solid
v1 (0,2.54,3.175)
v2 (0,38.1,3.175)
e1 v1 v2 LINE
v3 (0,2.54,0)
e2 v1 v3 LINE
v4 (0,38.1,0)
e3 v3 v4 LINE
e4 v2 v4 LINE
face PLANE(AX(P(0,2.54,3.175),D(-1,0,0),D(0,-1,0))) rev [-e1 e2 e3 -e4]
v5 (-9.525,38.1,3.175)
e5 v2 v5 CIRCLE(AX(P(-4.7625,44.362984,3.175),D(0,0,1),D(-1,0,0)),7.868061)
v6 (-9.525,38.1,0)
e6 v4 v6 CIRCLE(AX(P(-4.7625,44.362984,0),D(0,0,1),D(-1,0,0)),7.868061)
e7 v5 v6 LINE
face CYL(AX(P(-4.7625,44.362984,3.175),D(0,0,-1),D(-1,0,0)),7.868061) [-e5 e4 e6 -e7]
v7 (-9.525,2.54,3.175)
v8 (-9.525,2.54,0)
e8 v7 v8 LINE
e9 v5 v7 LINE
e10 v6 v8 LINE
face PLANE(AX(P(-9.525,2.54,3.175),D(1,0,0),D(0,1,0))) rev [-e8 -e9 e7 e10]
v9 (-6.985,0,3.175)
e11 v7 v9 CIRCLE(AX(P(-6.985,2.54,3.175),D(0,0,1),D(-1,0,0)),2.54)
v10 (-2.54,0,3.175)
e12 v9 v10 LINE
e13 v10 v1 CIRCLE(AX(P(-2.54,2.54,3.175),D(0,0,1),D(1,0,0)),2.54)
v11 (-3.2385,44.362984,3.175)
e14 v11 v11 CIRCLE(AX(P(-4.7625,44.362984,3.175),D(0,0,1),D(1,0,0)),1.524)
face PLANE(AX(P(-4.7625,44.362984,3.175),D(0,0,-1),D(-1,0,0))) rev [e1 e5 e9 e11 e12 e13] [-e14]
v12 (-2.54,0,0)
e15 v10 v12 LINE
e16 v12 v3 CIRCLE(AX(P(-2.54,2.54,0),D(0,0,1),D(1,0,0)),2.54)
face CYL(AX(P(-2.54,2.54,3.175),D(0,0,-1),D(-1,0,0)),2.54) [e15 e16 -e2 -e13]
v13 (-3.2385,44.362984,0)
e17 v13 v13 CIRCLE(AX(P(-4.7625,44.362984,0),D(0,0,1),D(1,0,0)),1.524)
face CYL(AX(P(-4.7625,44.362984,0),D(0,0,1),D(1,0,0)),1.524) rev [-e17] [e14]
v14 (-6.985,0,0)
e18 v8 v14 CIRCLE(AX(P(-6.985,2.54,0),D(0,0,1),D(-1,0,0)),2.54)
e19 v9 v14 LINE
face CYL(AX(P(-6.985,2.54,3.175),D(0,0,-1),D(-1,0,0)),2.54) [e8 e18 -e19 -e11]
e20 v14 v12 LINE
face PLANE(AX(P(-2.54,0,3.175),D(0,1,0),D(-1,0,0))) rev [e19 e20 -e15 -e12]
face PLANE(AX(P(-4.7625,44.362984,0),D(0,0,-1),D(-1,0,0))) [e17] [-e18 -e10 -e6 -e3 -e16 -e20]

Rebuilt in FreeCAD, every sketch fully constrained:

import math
import FreeCAD as App
import Part
import Sketcher
Q = App.Units.Quantity

doc = App.newDocument("Part")
body = doc.addObject("PartDesign::Body", "Body")

# Sketch on XY plane
sketch1 = body.newObject("Sketcher::SketchObject", "Sketch")
sketch1.AttachmentSupport = (doc.getObject("XY_Plane"), [""])
sketch1.MapMode = "FlatFace"
sketch1.addGeometry([
    Part.LineSegment(App.Vector(-7, 0, 0), App.Vector(-2.5, 0, 0)),  # 0
    Part.ArcOfCircle(Part.Circle(App.Vector(-2.5, 2.5, 0), App.Vector(0, 0, 1), 2.5), math.radians(-90), math.radians(0)),  # 1
    Part.LineSegment(App.Vector(0, 2.5, 0), App.Vector(0, 38.1, 0)),  # 2
    Part.ArcOfCircle(Part.Circle(App.Vector(-4.8, 44.4, 0), App.Vector(0, 0, 1), 7.9), math.radians(-53), math.radians(233)),  # 3
    Part.LineSegment(App.Vector(-9.5, 38.1, 0), App.Vector(-9.5, 2.5, 0)),  # 4
    Part.ArcOfCircle(Part.Circle(App.Vector(-7, 2.5, 0), App.Vector(0, 0, 1), 2.5), math.radians(-180), math.radians(-90)),  # 5
], False)
sketch1.addConstraint([
    Sketcher.Constraint("Tangent", 0, 2, 1, 1),
    Sketcher.Constraint("Tangent", 1, 2, 2, 1),
    Sketcher.Constraint("Coincident", 2, 2, 3, 1),
    Sketcher.Constraint("Coincident", 3, 2, 4, 1),
    Sketcher.Constraint("Tangent", 4, 2, 5, 1),
    Sketcher.Constraint("Tangent", 5, 2, 0, 1),
    Sketcher.Constraint("Horizontal", 0),
    Sketcher.Constraint("Vertical", 2),
    Sketcher.Constraint("Vertical", 4),
    Sketcher.Constraint("Equal", 1, 5),
    Sketcher.Constraint("PointOnObject", 0, 2, -1),
    Sketcher.Constraint("PointOnObject", 1, 2, -2),
    Sketcher.Constraint("Horizontal", 2, 2, 3, 2),
    Sketcher.Constraint("Radius", 1, Q("0.1 in")),
    Sketcher.Constraint("DistanceY", 2, 1, 2, 2, Q("1.4 in")),
    Sketcher.Constraint("DistanceX", 0, 1, 0, 2, Q("0.175 in")),
    Sketcher.Constraint("Radius", 3, Q("7.868061 mm")),
])
pad1 = body.newObject("PartDesign::Pad", "Pad")
pad1.Profile = sketch1
pad1.Length = Q("0.125 in")

# Sketch on XY plane
sketch2 = body.newObject("Sketcher::SketchObject", "Sketch001")
sketch2.AttachmentSupport = (doc.getObject("XY_Plane"), [""])
sketch2.MapMode = "FlatFace"
sketch2.AttachmentOffset = App.Placement(App.Vector(0, 0, 0.125 * 25.4), App.Rotation())
sketch2.addGeometry(Part.Circle(App.Vector(-4.8, 44.4, 0), App.Vector(0, 0, 1), 1.5), False)
sketch2.addConstraint([
    Sketcher.Constraint("Diameter", 0, Q("0.12 in")),
    Sketcher.Constraint("DistanceX", 0, 3, -1, 1, Q("0.1875 in")),
    Sketcher.Constraint("DistanceY", -1, 1, 0, 3, Q("44.362984 mm")),
])
pocket1 = body.newObject("PartDesign::Pocket", "Pocket")
pocket1.Profile = sketch2
pocket1.Length = Q("0.125 in")

doc.recompute()
